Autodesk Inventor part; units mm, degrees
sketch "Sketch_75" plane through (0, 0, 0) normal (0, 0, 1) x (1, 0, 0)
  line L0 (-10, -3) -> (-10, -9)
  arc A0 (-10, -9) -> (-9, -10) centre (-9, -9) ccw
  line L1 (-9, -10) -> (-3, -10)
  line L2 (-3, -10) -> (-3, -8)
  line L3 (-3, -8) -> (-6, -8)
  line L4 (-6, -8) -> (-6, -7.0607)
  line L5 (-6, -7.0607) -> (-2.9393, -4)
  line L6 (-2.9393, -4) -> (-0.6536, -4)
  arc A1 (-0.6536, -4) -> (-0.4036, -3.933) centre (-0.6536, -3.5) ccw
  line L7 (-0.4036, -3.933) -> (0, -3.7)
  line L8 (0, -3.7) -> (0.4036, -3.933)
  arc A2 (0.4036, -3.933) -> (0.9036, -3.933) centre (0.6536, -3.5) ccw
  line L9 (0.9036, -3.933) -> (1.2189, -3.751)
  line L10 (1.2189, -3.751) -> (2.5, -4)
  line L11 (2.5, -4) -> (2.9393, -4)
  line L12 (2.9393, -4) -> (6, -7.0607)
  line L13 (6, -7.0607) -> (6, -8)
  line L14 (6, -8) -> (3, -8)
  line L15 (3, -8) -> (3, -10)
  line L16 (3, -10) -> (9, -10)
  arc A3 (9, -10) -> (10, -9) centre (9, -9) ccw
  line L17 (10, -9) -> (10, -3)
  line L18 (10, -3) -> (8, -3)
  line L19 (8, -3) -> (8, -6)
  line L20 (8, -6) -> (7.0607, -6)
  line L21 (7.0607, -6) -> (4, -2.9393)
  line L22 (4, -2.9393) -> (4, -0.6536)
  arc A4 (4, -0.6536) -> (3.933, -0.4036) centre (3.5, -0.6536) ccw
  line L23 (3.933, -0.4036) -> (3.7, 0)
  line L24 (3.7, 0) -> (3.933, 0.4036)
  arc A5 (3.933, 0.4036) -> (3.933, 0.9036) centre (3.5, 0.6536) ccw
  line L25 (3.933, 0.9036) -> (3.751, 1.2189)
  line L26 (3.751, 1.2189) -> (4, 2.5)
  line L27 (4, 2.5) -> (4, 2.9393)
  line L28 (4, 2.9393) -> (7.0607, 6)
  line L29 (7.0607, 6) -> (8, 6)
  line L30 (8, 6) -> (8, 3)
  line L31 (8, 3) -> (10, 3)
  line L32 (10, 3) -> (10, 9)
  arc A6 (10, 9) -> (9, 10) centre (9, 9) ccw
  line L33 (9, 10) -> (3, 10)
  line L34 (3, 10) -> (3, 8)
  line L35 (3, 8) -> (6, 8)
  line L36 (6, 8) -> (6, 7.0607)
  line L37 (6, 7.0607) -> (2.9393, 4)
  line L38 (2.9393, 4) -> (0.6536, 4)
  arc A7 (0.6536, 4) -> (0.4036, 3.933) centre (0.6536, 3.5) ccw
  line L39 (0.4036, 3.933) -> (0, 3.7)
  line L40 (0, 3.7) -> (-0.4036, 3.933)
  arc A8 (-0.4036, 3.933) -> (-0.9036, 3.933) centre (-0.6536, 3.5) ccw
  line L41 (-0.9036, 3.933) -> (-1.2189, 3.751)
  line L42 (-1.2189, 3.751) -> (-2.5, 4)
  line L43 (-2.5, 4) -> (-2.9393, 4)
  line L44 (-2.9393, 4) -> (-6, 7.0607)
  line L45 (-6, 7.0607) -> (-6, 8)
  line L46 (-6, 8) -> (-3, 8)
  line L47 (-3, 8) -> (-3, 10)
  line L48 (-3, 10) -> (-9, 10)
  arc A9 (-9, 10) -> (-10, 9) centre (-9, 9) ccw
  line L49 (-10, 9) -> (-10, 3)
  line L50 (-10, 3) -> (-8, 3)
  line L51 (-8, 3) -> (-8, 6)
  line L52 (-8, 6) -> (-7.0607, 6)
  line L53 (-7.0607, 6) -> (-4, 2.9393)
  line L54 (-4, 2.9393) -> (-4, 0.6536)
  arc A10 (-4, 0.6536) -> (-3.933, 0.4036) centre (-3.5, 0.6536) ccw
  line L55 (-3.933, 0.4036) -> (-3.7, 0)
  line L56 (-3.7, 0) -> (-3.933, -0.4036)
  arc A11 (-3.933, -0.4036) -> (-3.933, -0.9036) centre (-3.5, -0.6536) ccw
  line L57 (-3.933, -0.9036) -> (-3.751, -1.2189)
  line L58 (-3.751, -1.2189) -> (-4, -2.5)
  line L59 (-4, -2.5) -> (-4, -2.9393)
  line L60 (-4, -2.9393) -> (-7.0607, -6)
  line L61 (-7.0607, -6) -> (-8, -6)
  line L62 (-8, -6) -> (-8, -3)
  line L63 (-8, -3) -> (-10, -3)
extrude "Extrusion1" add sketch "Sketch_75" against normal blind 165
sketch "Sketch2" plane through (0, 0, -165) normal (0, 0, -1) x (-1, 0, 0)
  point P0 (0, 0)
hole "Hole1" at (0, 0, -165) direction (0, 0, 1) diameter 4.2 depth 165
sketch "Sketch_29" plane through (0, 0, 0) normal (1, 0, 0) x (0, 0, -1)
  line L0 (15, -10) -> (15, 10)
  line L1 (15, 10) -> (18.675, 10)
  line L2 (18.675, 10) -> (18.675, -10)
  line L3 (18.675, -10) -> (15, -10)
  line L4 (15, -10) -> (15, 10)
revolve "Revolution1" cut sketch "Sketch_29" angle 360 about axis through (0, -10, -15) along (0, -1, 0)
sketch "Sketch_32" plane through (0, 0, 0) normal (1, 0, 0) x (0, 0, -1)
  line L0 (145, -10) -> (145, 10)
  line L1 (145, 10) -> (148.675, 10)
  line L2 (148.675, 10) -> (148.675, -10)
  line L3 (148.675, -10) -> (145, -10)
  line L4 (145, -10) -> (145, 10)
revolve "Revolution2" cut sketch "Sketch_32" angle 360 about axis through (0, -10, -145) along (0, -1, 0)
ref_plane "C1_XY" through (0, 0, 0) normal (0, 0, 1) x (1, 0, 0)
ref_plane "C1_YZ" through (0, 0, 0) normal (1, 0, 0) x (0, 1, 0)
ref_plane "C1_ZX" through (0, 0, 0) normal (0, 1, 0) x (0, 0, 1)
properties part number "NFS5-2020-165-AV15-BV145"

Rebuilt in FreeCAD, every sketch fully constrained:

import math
import FreeCAD as App
import Part
import Sketcher
Q = App.Units.Quantity


def add_polygon(sketch, points):
    """Adds a closed chain of lines whose ends are joined by coincident constraints."""
    first, n = sketch.GeometryCount, len(points)
    for a, b in zip(points, points[1:] + points[:1]):
        sketch.addGeometry(Part.LineSegment(App.Vector(*a, 0), App.Vector(*b, 0)), False)
    for i in range(n):
        sketch.addConstraint(Sketcher.Constraint("Coincident", first + i, 2, first + (i + 1) % n, 1))

doc = App.newDocument("Part")
body = doc.addObject("PartDesign::Body", "Body")

# Sketch on XY plane
sketch1 = doc.addObject("Sketcher::SketchObject", "Sketch")
body.addObject(sketch1)
sketch1.AttachmentSupport = (doc.XY_Plane, [""])
sketch1.MapMode = "FlatFace"
sketch1.addGeometry([
    Part.LineSegment(App.Vector(-8, -3, 0), App.Vector(-10, -3, 0)),  # 0
    Part.LineSegment(App.Vector(-10, -3, 0), App.Vector(-10, -9, 0)),  # 1
    Part.ArcOfCircle(Part.Circle(App.Vector(-9, -9, 0), App.Vector(0, 0, 1), 1), math.radians(180), math.radians(270)),  # 2
    Part.LineSegment(App.Vector(-9, -10, 0), App.Vector(-3, -10, 0)),  # 3
    Part.LineSegment(App.Vector(-3, -10, 0), App.Vector(-3, -8, 0)),  # 4
    Part.LineSegment(App.Vector(-3, -8, 0), App.Vector(-6, -8, 0)),  # 5
    Part.LineSegment(App.Vector(-6, -8, 0), App.Vector(-6, -7.06, 0)),  # 6
    Part.LineSegment(App.Vector(-6, -7.06, 0), App.Vector(-2.94, -4, 0)),  # 7
    Part.LineSegment(App.Vector(-2.94, -4, 0), App.Vector(-0.65, -4, 0)),  # 8
    Part.ArcOfCircle(Part.Circle(App.Vector(-0.65, -3.5, 0), App.Vector(0, 0, 1), 0.5), math.radians(-90), math.radians(-60)),  # 9
    Part.LineSegment(App.Vector(-0.4, -3.93, 0), App.Vector(0, -3.7, 0)),  # 10
    Part.LineSegment(App.Vector(0, -3.7, 0), App.Vector(0.4, -3.93, 0)),  # 11
    Part.ArcOfCircle(Part.Circle(App.Vector(0.65, -3.5, 0), App.Vector(0, 0, 1), 0.5), math.radians(-120), math.radians(-60)),  # 12
    Part.LineSegment(App.Vector(0.9, -3.93, 0), App.Vector(1.22, -3.75, 0)),  # 13
    Part.LineSegment(App.Vector(1.22, -3.75, 0), App.Vector(2.5, -4, 0)),  # 14
    Part.LineSegment(App.Vector(2.5, -4, 0), App.Vector(2.94, -4, 0)),  # 15
    Part.LineSegment(App.Vector(2.94, -4, 0), App.Vector(6, -7.06, 0)),  # 16
    Part.LineSegment(App.Vector(6, -7.06, 0), App.Vector(6, -8, 0)),  # 17
    Part.LineSegment(App.Vector(6, -8, 0), App.Vector(3, -8, 0)),  # 18
    Part.LineSegment(App.Vector(3, -8, 0), App.Vector(3, -10, 0)),  # 19
    Part.LineSegment(App.Vector(3, -10, 0), App.Vector(9, -10, 0)),  # 20
    Part.ArcOfCircle(Part.Circle(App.Vector(9, -9, 0), App.Vector(0, 0, 1), 1), math.radians(-90), math.radians(0)),  # 21
    Part.LineSegment(App.Vector(10, -9, 0), App.Vector(10, -3, 0)),  # 22
    Part.LineSegment(App.Vector(10, -3, 0), App.Vector(8, -3, 0)),  # 23
    Part.LineSegment(App.Vector(8, -3, 0), App.Vector(8, -6, 0)),  # 24
    Part.LineSegment(App.Vector(8, -6, 0), App.Vector(7.06, -6, 0)),  # 25
    Part.LineSegment(App.Vector(7.06, -6, 0), App.Vector(4, -2.94, 0)),  # 26
    Part.LineSegment(App.Vector(4, -2.94, 0), App.Vector(4, -0.65, 0)),  # 27
    Part.ArcOfCircle(Part.Circle(App.Vector(3.5, -0.65, 0), App.Vector(0, 0, 1), 0.5), math.radians(0), math.radians(30)),  # 28
    Part.LineSegment(App.Vector(3.93, -0.4, 0), App.Vector(3.7, 0, 0)),  # 29
    Part.LineSegment(App.Vector(3.7, 0, 0), App.Vector(3.93, 0.4, 0)),  # 30
    Part.ArcOfCircle(Part.Circle(App.Vector(3.5, 0.65, 0), App.Vector(0, 0, 1), 0.5), math.radians(-30), math.radians(30)),  # 31
    Part.LineSegment(App.Vector(3.93, 0.9, 0), App.Vector(3.75, 1.22, 0)),  # 32
    Part.LineSegment(App.Vector(3.75, 1.22, 0), App.Vector(4, 2.5, 0)),  # 33
    Part.LineSegment(App.Vector(4, 2.5, 0), App.Vector(4, 2.94, 0)),  # 34
    Part.LineSegment(App.Vector(4, 2.94, 0), App.Vector(7.06, 6, 0)),  # 35
    Part.LineSegment(App.Vector(7.06, 6, 0), App.Vector(8, 6, 0)),  # 36
    Part.LineSegment(App.Vector(8, 6, 0), App.Vector(8, 3, 0)),  # 37
    Part.LineSegment(App.Vector(8, 3, 0), App.Vector(10, 3, 0)),  # 38
    Part.LineSegment(App.Vector(10, 3, 0), App.Vector(10, 9, 0)),  # 39
    Part.ArcOfCircle(Part.Circle(App.Vector(9, 9, 0), App.Vector(0, 0, 1), 1), math.radians(0), math.radians(90)),  # 40
    Part.LineSegment(App.Vector(9, 10, 0), App.Vector(3, 10, 0)),  # 41
    Part.LineSegment(App.Vector(3, 10, 0), App.Vector(3, 8, 0)),  # 42
    Part.LineSegment(App.Vector(3, 8, 0), App.Vector(6, 8, 0)),  # 43
    Part.LineSegment(App.Vector(6, 8, 0), App.Vector(6, 7.06, 0)),  # 44
    Part.LineSegment(App.Vector(6, 7.06, 0), App.Vector(2.94, 4, 0)),  # 45
    Part.LineSegment(App.Vector(2.94, 4, 0), App.Vector(0.65, 4, 0)),  # 46
    Part.ArcOfCircle(Part.Circle(App.Vector(0.65, 3.5, 0), App.Vector(0, 0, 1), 0.5), math.radians(90), math.radians(120)),  # 47
    Part.LineSegment(App.Vector(0.4, 3.93, 0), App.Vector(0, 3.7, 0)),  # 48
    Part.LineSegment(App.Vector(0, 3.7, 0), App.Vector(-0.4, 3.93, 0)),  # 49
    Part.ArcOfCircle(Part.Circle(App.Vector(-0.65, 3.5, 0), App.Vector(0, 0, 1), 0.5), math.radians(60), math.radians(120)),  # 50
    Part.LineSegment(App.Vector(-0.9, 3.93, 0), App.Vector(-1.22, 3.75, 0)),  # 51
    Part.LineSegment(App.Vector(-1.22, 3.75, 0), App.Vector(-2.5, 4, 0)),  # 52
    Part.LineSegment(App.Vector(-2.5, 4, 0), App.Vector(-2.94, 4, 0)),  # 53
    Part.LineSegment(App.Vector(-2.94, 4, 0), App.Vector(-6, 7.06, 0)),  # 54
    Part.LineSegment(App.Vector(-6, 7.06, 0), App.Vector(-6, 8, 0)),  # 55
    Part.LineSegment(App.Vector(-6, 8, 0), App.Vector(-3, 8, 0)),  # 56
    Part.LineSegment(App.Vector(-3, 8, 0), App.Vector(-3, 10, 0)),  # 57
    Part.LineSegment(App.Vector(-3, 10, 0), App.Vector(-9, 10, 0)),  # 58
    Part.ArcOfCircle(Part.Circle(App.Vector(-9, 9, 0), App.Vector(0, 0, 1), 1), math.radians(90), math.radians(180)),  # 59
    Part.LineSegment(App.Vector(-10, 9, 0), App.Vector(-10, 3, 0)),  # 60
    Part.LineSegment(App.Vector(-10, 3, 0), App.Vector(-8, 3, 0)),  # 61
    Part.LineSegment(App.Vector(-8, 3, 0), App.Vector(-8, 6, 0)),  # 62
    Part.LineSegment(App.Vector(-8, 6, 0), App.Vector(-7.06, 6, 0)),  # 63
    Part.LineSegment(App.Vector(-7.06, 6, 0), App.Vector(-4, 2.94, 0)),  # 64
    Part.LineSegment(App.Vector(-4, 2.94, 0), App.Vector(-4, 0.65, 0)),  # 65
    Part.ArcOfCircle(Part.Circle(App.Vector(-3.5, 0.65, 0), App.Vector(0, 0, 1), 0.5), math.radians(180), math.radians(210)),  # 66
    Part.LineSegment(App.Vector(-3.93, 0.4, 0), App.Vector(-3.7, 0, 0)),  # 67
    Part.LineSegment(App.Vector(-3.7, 0, 0), App.Vector(-3.93, -0.4, 0)),  # 68
    Part.ArcOfCircle(Part.Circle(App.Vector(-3.5, -0.65, 0), App.Vector(0, 0, 1), 0.5), math.radians(150), math.radians(210)),  # 69
    Part.LineSegment(App.Vector(-3.93, -0.9, 0), App.Vector(-3.75, -1.22, 0)),  # 70
    Part.LineSegment(App.Vector(-3.75, -1.22, 0), App.Vector(-4, -2.5, 0)),  # 71
    Part.LineSegment(App.Vector(-4, -2.5, 0), App.Vector(-4, -2.94, 0)),  # 72
    Part.LineSegment(App.Vector(-4, -2.94, 0), App.Vector(-7.06, -6, 0)),  # 73
    Part.LineSegment(App.Vector(-7.06, -6, 0), App.Vector(-8, -6, 0)),  # 74
    Part.LineSegment(App.Vector(-8, -6, 0), App.Vector(-8, -3, 0)),  # 75
], False)
sketch1.addConstraint([
    Sketcher.Constraint("Coincident", 0, 2, 1, 1),
    Sketcher.Constraint("Tangent", 1, 2, 2, 1),
    Sketcher.Constraint("Tangent", 2, 2, 3, 1),
    Sketcher.Constraint("Coincident", 3, 2, 4, 1),
    Sketcher.Constraint("Coincident", 4, 2, 5, 1),
    Sketcher.Constraint("Coincident", 5, 2, 6, 1),
    Sketcher.Constraint("Coincident", 6, 2, 7, 1),
    Sketcher.Constraint("Coincident", 7, 2, 8, 1),
    Sketcher.Constraint("Tangent", 8, 2, 9, 1),
    Sketcher.Constraint("Tangent", 9, 2, 10, 1),
    Sketcher.Constraint("Coincident", 10, 2, 11, 1),
    Sketcher.Constraint("Tangent", 11, 2, 12, 1),
    Sketcher.Constraint("Tangent", 12, 2, 13, 1),
    Sketcher.Constraint("Coincident", 13, 2, 14, 1),
    Sketcher.Constraint("Coincident", 14, 2, 15, 1),
    Sketcher.Constraint("Coincident", 15, 2, 16, 1),
    Sketcher.Constraint("Coincident", 16, 2, 17, 1),
    Sketcher.Constraint("Coincident", 17, 2, 18, 1),
    Sketcher.Constraint("Coincident", 18, 2, 19, 1),
    Sketcher.Constraint("Coincident", 19, 2, 20, 1),
    Sketcher.Constraint("Tangent", 20, 2, 21, 1),
    Sketcher.Constraint("Tangent", 21, 2, 22, 1),
    Sketcher.Constraint("Coincident", 22, 2, 23, 1),
    Sketcher.Constraint("Coincident", 23, 2, 24, 1),
    Sketcher.Constraint("Coincident", 24, 2, 25, 1),
    Sketcher.Constraint("Coincident", 25, 2, 26, 1),
    Sketcher.Constraint("Coincident", 26, 2, 27, 1),
    Sketcher.Constraint("Tangent", 27, 2, 28, 1),
    Sketcher.Constraint("Tangent", 28, 2, 29, 1),
    Sketcher.Constraint("Coincident", 29, 2, 30, 1),
    Sketcher.Constraint("Tangent", 30, 2, 31, 1),
    Sketcher.Constraint("Tangent", 31, 2, 32, 1),
    Sketcher.Constraint("Coincident", 32, 2, 33, 1),
    Sketcher.Constraint("Coincident", 33, 2, 34, 1),
    Sketcher.Constraint("Coincident", 34, 2, 35, 1),
    Sketcher.Constraint("Coincident", 35, 2, 36, 1),
    Sketcher.Constraint("Coincident", 36, 2, 37, 1),
    Sketcher.Constraint("Coincident", 37, 2, 38, 1),
    Sketcher.Constraint("Coincident", 38, 2, 39, 1),
    Sketcher.Constraint("Tangent", 39, 2, 40, 1),
    Sketcher.Constraint("Tangent", 40, 2, 41, 1),
    Sketcher.Constraint("Coincident", 41, 2, 42, 1),
    Sketcher.Constraint("Coincident", 42, 2, 43, 1),
    Sketcher.Constraint("Coincident", 43, 2, 44, 1),
    Sketcher.Constraint("Coincident", 44, 2, 45, 1),
    Sketcher.Constraint("Coincident", 45, 2, 46, 1),
    Sketcher.Constraint("Tangent", 46, 2, 47, 1),
    Sketcher.Constraint("Tangent", 47, 2, 48, 1),
    Sketcher.Constraint("Coincident", 48, 2, 49, 1),
    Sketcher.Constraint("Tangent", 49, 2, 50, 1),
    Sketcher.Constraint("Tangent", 50, 2, 51, 1),
    Sketcher.Constraint("Coincident", 51, 2, 52, 1),
    Sketcher.Constraint("Coincident", 52, 2, 53, 1),
    Sketcher.Constraint("Coincident", 53, 2, 54, 1),
    Sketcher.Constraint("Coincident", 54, 2, 55, 1),
    Sketcher.Constraint("Coincident", 55, 2, 56, 1),
    Sketcher.Constraint("Coincident", 56, 2, 57, 1),
    Sketcher.Constraint("Coincident", 57, 2, 58, 1),
    Sketcher.Constraint("Tangent", 58, 2, 59, 1),
    Sketcher.Constraint("Tangent", 59, 2, 60, 1),
    Sketcher.Constraint("Coincident", 60, 2, 61, 1),
    Sketcher.Constraint("Coincident", 61, 2, 62, 1),
    Sketcher.Constraint("Coincident", 62, 2, 63, 1),
    Sketcher.Constraint("Coincident", 63, 2, 64, 1),
    Sketcher.Constraint("Coincident", 64, 2, 65, 1),
    Sketcher.Constraint("Tangent", 65, 2, 66, 1),
    Sketcher.Constraint("Tangent", 66, 2, 67, 1),
    Sketcher.Constraint("Coincident", 67, 2, 68, 1),
    Sketcher.Constraint("Tangent", 68, 2, 69, 1),
    Sketcher.Constraint("Tangent", 69, 2, 70, 1),
    Sketcher.Constraint("Coincident", 70, 2, 71, 1),
    Sketcher.Constraint("Coincident", 71, 2, 72, 1),
    Sketcher.Constraint("Coincident", 72, 2, 73, 1),
    Sketcher.Constraint("Coincident", 73, 2, 74, 1),
    Sketcher.Constraint("Coincident", 74, 2, 75, 1),
    Sketcher.Constraint("Coincident", 75, 2, 0, 1),
    Sketcher.Constraint("Horizontal", 0),
    Sketcher.Constraint("Vertical", 1),
    Sketcher.Constraint("Horizontal", 3),
    Sketcher.Constraint("Vertical", 4),
    Sketcher.Constraint("Horizontal", 5),
    Sketcher.Constraint("Vertical", 6),
    Sketcher.Constraint("Horizontal", 8),
    Sketcher.Constraint("Horizontal", 15),
    Sketcher.Constraint("Vertical", 17),
    Sketcher.Constraint("Horizontal", 18),
    Sketcher.Constraint("Vertical", 19),
    Sketcher.Constraint("Horizontal", 20),
    Sketcher.Constraint("Vertical", 22),
    Sketcher.Constraint("Horizontal", 23),
    Sketcher.Constraint("Vertical", 24),
    Sketcher.Constraint("Horizontal", 25),
    Sketcher.Constraint("Vertical", 27),
    Sketcher.Constraint("Vertical", 34),
    Sketcher.Constraint("Horizontal", 36),
    Sketcher.Constraint("Vertical", 37),
    Sketcher.Constraint("Horizontal", 38),
    Sketcher.Constraint("Vertical", 39),
    Sketcher.Constraint("Horizontal", 41),
    Sketcher.Constraint("Vertical", 42),
    Sketcher.Constraint("Horizontal", 43),
    Sketcher.Constraint("Vertical", 44),
    Sketcher.Constraint("Horizontal", 46),
    Sketcher.Constraint("Horizontal", 53),
    Sketcher.Constraint("Vertical", 55),
    Sketcher.Constraint("Horizontal", 56),
    Sketcher.Constraint("Vertical", 57),
    Sketcher.Constraint("Horizontal", 58),
    Sketcher.Constraint("Vertical", 60),
    Sketcher.Constraint("Horizontal", 61),
    Sketcher.Constraint("Vertical", 62),
    Sketcher.Constraint("Horizontal", 63),
    Sketcher.Constraint("Vertical", 65),
    Sketcher.Constraint("Vertical", 72),
    Sketcher.Constraint("Horizontal", 74),
    Sketcher.Constraint("Vertical", 75),
    Sketcher.Constraint("Equal", 9, 12),
    Sketcher.Constraint("Equal", 2, 21),
    Sketcher.Constraint("Equal", 12, 28),
    Sketcher.Constraint("Equal", 28, 31),
    Sketcher.Constraint("Equal", 21, 40),
    Sketcher.Constraint("Equal", 31, 47),
    Sketcher.Constraint("Equal", 47, 50),
    Sketcher.Constraint("Equal", 40, 59),
    Sketcher.Constraint("Equal", 50, 66),
    Sketcher.Constraint("Equal", 66, 69),
    Sketcher.Constraint("Symmetric", 2, 3, 40, 3, -1, 1),
    Sketcher.Constraint("Symmetric", 9, 3, 47, 3, -1, 1),
    Sketcher.Constraint("Symmetric", 12, 3, 50, 3, -1, 1),
    Sketcher.Constraint("Symmetric", 21, 3, 59, 3, -1, 1),
    Sketcher.Constraint("Symmetric", 28, 3, 66, 3, -1, 1),
    Sketcher.Constraint("Symmetric", 31, 3, 69, 3, -1, 1),
    Sketcher.Constraint("Symmetric", 4, 2, 42, 2, -1, 1),
    Sketcher.Constraint("Symmetric", 6, 2, 44, 2, -1, 1),
    Sketcher.Constraint("Symmetric", 10, 2, 48, 2, -1, 1),
    Sketcher.Constraint("Symmetric", 13, 2, 51, 2, -1, 1),
    Sketcher.Constraint("Symmetric", 14, 2, 52, 2, -1, 1),
    Sketcher.Constraint("Symmetric", 16, 2, 54, 2, -1, 1),
    Sketcher.Constraint("Symmetric", 18, 2, 56, 2, -1, 1),
    Sketcher.Constraint("Symmetric", 23, 2, 61, 2, -1, 1),
    Sketcher.Constraint("Symmetric", 25, 2, 63, 2, -1, 1),
    Sketcher.Constraint("Symmetric", 29, 2, 67, 2, -1, 1),
    Sketcher.Constraint("Symmetric", 32, 2, 70, 2, -1, 1),
    Sketcher.Constraint("Symmetric", 33, 2, 71, 2, -1, 1),
    Sketcher.Constraint("Symmetric", 35, 2, 73, 2, -1, 1),
    Sketcher.Constraint("Symmetric", 37, 2, 75, 2, -1, 1),
    Sketcher.Constraint("Symmetric", 9, 3, 12, 3, -2),
    Sketcher.Constraint("Symmetric", 2, 3, 21, 3, -2),
    Sketcher.Constraint("Symmetric", 31, 3, 66, 3, -2),
    Sketcher.Constraint("Symmetric", 7, 2, 15, 2, -2),
    Sketcher.Constraint("Symmetric", 6, 2, 16, 2, -2),
    Sketcher.Constraint("Symmetric", 4, 2, 18, 2, -2),
    Sketcher.Constraint("Symmetric", 37, 2, 61, 2, -2),
    Sketcher.Constraint("Symmetric", 35, 2, 63, 2, -2),
    Sketcher.Constraint("Symmetric", 34, 2, 64, 2, -2),
    Sketcher.Constraint("PointOnObject", 10, 2, -2),
    Sketcher.Constraint("PointOnObject", 29, 2, -1),
    Sketcher.Constraint("Parallel", 10, 13),
    Sketcher.Constraint("Perpendicular", 7, 16),
    Sketcher.Constraint("Parallel", 16, 26),
    Sketcher.Constraint("Perpendicular", 13, 29),
    Sketcher.Constraint("Parallel", 29, 32),
    Sketcher.Constraint("Perpendicular", 14, 33),
    Sketcher.Constraint("Perpendicular", 26, 35),
    Sketcher.Constraint("Parallel", 35, 45),
    Sketcher.Constraint("Perpendicular", 45, 54),
    Sketcher.Constraint("Perpendicular", 64, 73),
    Sketcher.Constraint("Equal", 58, 1),
    Sketcher.Constraint("Equal", 61, 4),
    Sketcher.Constraint("Equal", 74, 6),
    Sketcher.Constraint("Equal", 56, 24),
    Sketcher.Constraint("Equal", 46, 27),
    Sketcher.Constraint("Equal", 53, 34),
    Sketcher.Constraint("Equal", 16, 26),
    Sketcher.Constraint("Equal", 11, 29),
    Sketcher.Constraint("Radius", 2, Q("1 mm")),
    Sketcher.Constraint("Radius", 9, Q("0.5 mm")),
    Sketcher.Constraint("DistanceX", 0, 2, 0, 1, Q("2 mm")),
    Sketcher.Constraint("DistanceX", 3, 1, 3, 2, Q("6 mm")),
    Sketcher.Constraint("DistanceX", 5, 2, 5, 1, Q("3 mm")),
    Sketcher.Constraint("Angle", 14, Q("-10.999 deg")),
    Sketcher.Constraint("DistanceX", 2, 3, -1, 1, Q("9 mm")),
    Sketcher.Constraint("DistanceY", 7, 2, -1, 1, Q("4 mm")),
    Sketcher.Constraint("DistanceY", 10, 2, -1, 1, Q("3.7 mm")),
    Sketcher.Constraint("DistanceX", -1, 1, 14, 2, Q("2.5 mm")),
    Sketcher.Constraint("Distance", 10, Q("0.466 mm")),
    Sketcher.Constraint("DistanceX", 8, 1, 8, 2, Q("2.2857 mm")),
])
pad1 = doc.addObject("PartDesign::Pad", "Pad")
body.addObject(pad1)
pad1.Profile = sketch1
pad1.Length = 165
pad1.Reversed = True

# Sketch on XY plane
sketch2 = doc.addObject("Sketcher::SketchObject", "Sketch001")
body.addObject(sketch2)
sketch2.AttachmentSupport = (doc.XY_Plane, [""])
sketch2.MapMode = "FlatFace"
sketch2.AttachmentOffset = App.Placement(App.Vector(0, 0, -165), App.Rotation())
sketch2.addGeometry(Part.Circle(App.Vector(0, 0, 0), App.Vector(0, 0, 1), 2.1), False)
sketch2.addConstraint([
    Sketcher.Constraint("Coincident", 0, 3, -1, 1),
    Sketcher.Constraint("Diameter", 0, Q("4.2 mm")),
])
doc.recompute()
hole = doc.addObject("PartDesign::Hole", "Hole")
body.addObject(hole)
hole.Profile = sketch2
hole.ThreadType = "None"
hole.Diameter = 4.2
hole.DepthType = "Dimension"
hole.Depth = 165
hole.DrillPoint = "Flat"
hole.Reversed = True

# Sketch on YZ plane
sketch3 = doc.addObject("Sketcher::SketchObject", "Sketch002")
body.addObject(sketch3)
sketch3.AttachmentSupport = (doc.YZ_Plane, [""])
sketch3.MapMode = "FlatFace"
add_polygon(sketch3, [(10, -15), (-10, -15), (-10, -18.7), (10, -18.7)])  # lines 0-3
sketch3.addGeometry(Part.LineSegment(App.Vector(10, -15, 0), App.Vector(-10, -15, 0)), True)  # axis
sketch3.addConstraint([
    Sketcher.Constraint("Horizontal", 0),
    Sketcher.Constraint("Vertical", 1),
    Sketcher.Constraint("Horizontal", 2),
    Sketcher.Constraint("Vertical", 3),
    Sketcher.Constraint("Horizontal", 4),
    Sketcher.Constraint("Coincident", 4, 1, 3, 2),
    Sketcher.Constraint("Vertical", 1, 2, 4, 2),
    Sketcher.Constraint("DistanceX", 0, 2, 0, 1, Q("20 mm")),
    Sketcher.Constraint("DistanceX", 0, 2, -1, 1, Q("10 mm")),
    Sketcher.Constraint("DistanceY", 0, 2, -1, 1, Q("15 mm")),
    Sketcher.Constraint("DistanceY", 1, 2, 1, 1, Q("3.675 mm")),
])
groove = doc.addObject("PartDesign::Groove", "Groove")
body.addObject(groove)
groove.Profile = sketch3
groove.ReferenceAxis = (sketch3, ["Axis0"])
groove.Angle = 360

# Sketch on YZ plane
sketch4 = doc.addObject("Sketcher::SketchObject", "Sketch003")
body.addObject(sketch4)
sketch4.AttachmentSupport = (doc.YZ_Plane, [""])
sketch4.MapMode = "FlatFace"
add_polygon(sketch4, [(10, -145), (-10, -145), (-10, -148.7), (10, -148.7)])  # lines 0-3
sketch4.addGeometry(Part.LineSegment(App.Vector(10, -145, 0), App.Vector(-10, -145, 0)), True)  # axis
sketch4.addConstraint([
    Sketcher.Constraint("Horizontal", 0),
    Sketcher.Constraint("Vertical", 1),
    Sketcher.Constraint("Horizontal", 2),
    Sketcher.Constraint("Vertical", 3),
    Sketcher.Constraint("Horizontal", 4),
    Sketcher.Constraint("Coincident", 4, 1, 3, 2),
    Sketcher.Constraint("Vertical", 1, 2, 4, 2),
    Sketcher.Constraint("DistanceX", 0, 2, 0, 1, Q("20 mm")),
    Sketcher.Constraint("DistanceX", 0, 2, -1, 1, Q("10 mm")),
    Sketcher.Constraint("DistanceY", 0, 2, -1, 1, Q("145 mm")),
    Sketcher.Constraint("DistanceY", 1, 2, 1, 1, Q("3.675 mm")),
])
groove2 = doc.addObject("PartDesign::Groove", "Groove001")
body.addObject(groove2)
groove2.Profile = sketch4
groove2.ReferenceAxis = (sketch4, ["Axis0"])
groove2.Angle = 360

doc.recompute()
